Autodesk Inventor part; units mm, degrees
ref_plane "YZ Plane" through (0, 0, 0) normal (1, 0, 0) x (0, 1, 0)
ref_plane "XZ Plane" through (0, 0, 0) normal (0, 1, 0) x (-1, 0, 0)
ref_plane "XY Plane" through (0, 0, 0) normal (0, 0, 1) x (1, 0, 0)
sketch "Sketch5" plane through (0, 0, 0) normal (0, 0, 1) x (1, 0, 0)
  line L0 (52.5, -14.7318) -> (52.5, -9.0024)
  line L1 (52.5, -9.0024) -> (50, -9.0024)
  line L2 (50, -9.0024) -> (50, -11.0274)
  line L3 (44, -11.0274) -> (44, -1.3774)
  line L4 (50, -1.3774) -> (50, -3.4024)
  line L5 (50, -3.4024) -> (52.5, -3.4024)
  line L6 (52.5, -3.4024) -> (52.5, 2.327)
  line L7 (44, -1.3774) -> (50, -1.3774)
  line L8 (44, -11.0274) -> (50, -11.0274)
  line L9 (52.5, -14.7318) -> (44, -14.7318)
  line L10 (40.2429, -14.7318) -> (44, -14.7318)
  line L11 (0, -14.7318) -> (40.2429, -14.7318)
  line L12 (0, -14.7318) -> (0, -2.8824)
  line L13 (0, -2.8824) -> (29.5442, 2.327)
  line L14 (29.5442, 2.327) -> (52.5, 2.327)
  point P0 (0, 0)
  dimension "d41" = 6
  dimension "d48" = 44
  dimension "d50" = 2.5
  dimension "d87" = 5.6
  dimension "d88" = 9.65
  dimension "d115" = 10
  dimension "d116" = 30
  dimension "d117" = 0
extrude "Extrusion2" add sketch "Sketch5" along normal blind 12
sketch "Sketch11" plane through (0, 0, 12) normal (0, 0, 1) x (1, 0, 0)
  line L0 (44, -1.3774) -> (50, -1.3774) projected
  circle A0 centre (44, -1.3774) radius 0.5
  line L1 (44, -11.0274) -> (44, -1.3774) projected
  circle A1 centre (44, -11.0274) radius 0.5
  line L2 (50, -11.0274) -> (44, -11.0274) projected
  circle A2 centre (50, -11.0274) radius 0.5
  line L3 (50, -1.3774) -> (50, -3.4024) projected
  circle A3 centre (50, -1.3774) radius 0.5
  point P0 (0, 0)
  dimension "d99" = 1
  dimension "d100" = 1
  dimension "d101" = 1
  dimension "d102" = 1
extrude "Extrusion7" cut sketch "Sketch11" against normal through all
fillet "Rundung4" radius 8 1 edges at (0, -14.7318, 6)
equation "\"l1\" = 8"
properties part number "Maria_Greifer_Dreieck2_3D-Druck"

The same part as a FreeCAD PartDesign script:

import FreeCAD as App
import Part
import Sketcher
Q = App.Units.Quantity


def edges_at(feature, points):
    """Names of the edges that pass closest to the given points."""
    edges = feature.Shape.Edges
    near = lambda p: min(range(len(edges)), key=lambda i: edges[i].distToShape(Part.Vertex(*p))[0])
    return sorted({f"Edge{near(p) + 1}" for p in points})

doc = App.newDocument("Part")
body = doc.addObject("PartDesign::Body", "Body")

# Sketch on XY plane
sketch1 = doc.addObject("Sketcher::SketchObject", "Sketch")
body.addObject(sketch1)
sketch1.AttachmentSupport = (doc.XY_Plane, [""])
sketch1.MapMode = "FlatFace"
sketch1.addGeometry([
    Part.LineSegment(App.Vector(0, -14.7318, 0), App.Vector(52.5, -14.7318, 0)),  # 0
    Part.LineSegment(App.Vector(52.5, -14.7318, 0), App.Vector(52.5, -9.0024, 0)),  # 1
    Part.LineSegment(App.Vector(52.5, -9.0024, 0), App.Vector(50, -9.0024, 0)),  # 2
    Part.LineSegment(App.Vector(50, -9.0024, 0), App.Vector(50, -11.0274, 0)),  # 3
    Part.LineSegment(App.Vector(50, -11.0274, 0), App.Vector(44, -11.0274, 0)),  # 4
    Part.LineSegment(App.Vector(44, -11.0274, 0), App.Vector(44, -1.3774, 0)),  # 5
    Part.LineSegment(App.Vector(44, -1.3774, 0), App.Vector(50, -1.3774, 0)),  # 6
    Part.LineSegment(App.Vector(50, -1.3774, 0), App.Vector(50, -3.4024, 0)),  # 7
    Part.LineSegment(App.Vector(50, -3.4024, 0), App.Vector(52.5, -3.4024, 0)),  # 8
    Part.LineSegment(App.Vector(52.5, -3.4024, 0), App.Vector(52.5, 2.327, 0)),  # 9
    Part.LineSegment(App.Vector(52.5, 2.327, 0), App.Vector(29.5442, 2.327, 0)),  # 10
    Part.LineSegment(App.Vector(29.5442, 2.327, 0), App.Vector(0, -2.8824, 0)),  # 11
    Part.LineSegment(App.Vector(0, -2.8824, 0), App.Vector(0, -14.7318, 0)),  # 12
], False)
sketch1.addConstraint([
    Sketcher.Constraint("Coincident", 0, 2, 1, 1),
    Sketcher.Constraint("Coincident", 1, 2, 2, 1),
    Sketcher.Constraint("Coincident", 2, 2, 3, 1),
    Sketcher.Constraint("Coincident", 3, 2, 4, 1),
    Sketcher.Constraint("Coincident", 4, 2, 5, 1),
    Sketcher.Constraint("Coincident", 5, 2, 6, 1),
    Sketcher.Constraint("Coincident", 6, 2, 7, 1),
    Sketcher.Constraint("Coincident", 7, 2, 8, 1),
    Sketcher.Constraint("Coincident", 8, 2, 9, 1),
    Sketcher.Constraint("Coincident", 9, 2, 10, 1),
    Sketcher.Constraint("Coincident", 10, 2, 11, 1),
    Sketcher.Constraint("Coincident", 11, 2, 12, 1),
    Sketcher.Constraint("Coincident", 12, 2, 0, 1),
    Sketcher.Constraint("Horizontal", 0),
    Sketcher.Constraint("Vertical", 1),
    Sketcher.Constraint("Horizontal", 2),
    Sketcher.Constraint("Vertical", 3),
    Sketcher.Constraint("Horizontal", 4),
    Sketcher.Constraint("Vertical", 5),
    Sketcher.Constraint("Horizontal", 6),
    Sketcher.Constraint("Vertical", 7),
    Sketcher.Constraint("Horizontal", 8),
    Sketcher.Constraint("Vertical", 9),
    Sketcher.Constraint("Horizontal", 10),
    Sketcher.Constraint("Vertical", 12),
    Sketcher.Constraint("PointOnObject", 11, 2, -2),
    Sketcher.Constraint("Vertical", 3, 2, 6, 2),
    Sketcher.Constraint("Vertical", 1, 2, 8, 2),
    Sketcher.Constraint("Equal", 3, 7),
    Sketcher.Constraint("Equal", 1, 9),
    Sketcher.Constraint("DistanceX", 4, 2, 4, 1, Q("6 mm")),
    Sketcher.Constraint("Distance", 11, Q("30 mm")),
    Sketcher.Constraint("DistanceX", 2, 2, 2, 1, Q("2.5 mm")),
    Sketcher.Constraint("DistanceX", -1, 1, 4, 2, Q("44 mm")),
    Sketcher.Constraint("DistanceY", 5, 1, 5, 2, Q("9.65 mm")),
    Sketcher.Constraint("DistanceY", 2, 2, 7, 2, Q("5.6 mm")),
    Sketcher.Constraint("Angle", 11, Q("-170 deg")),
    Sketcher.Constraint("DistanceY", 7, 2, 11, 2, Q("0.52 mm")),
    Sketcher.Constraint("DistanceY", -1, 1, 9, 2, Q("2.327 mm")),
])
pad1 = doc.addObject("PartDesign::Pad", "Pad")
body.addObject(pad1)
pad1.Profile = sketch1
pad1.Length = 12

# Sketch on XY plane
sketch2 = doc.addObject("Sketcher::SketchObject", "Sketch001")
body.addObject(sketch2)
sketch2.AttachmentSupport = (doc.XY_Plane, [""])
sketch2.MapMode = "FlatFace"
sketch2.AttachmentOffset = App.Placement(App.Vector(0, 0, 12), App.Rotation())
sketch2.addGeometry([
    Part.Circle(App.Vector(44, -1.3774, 0), App.Vector(0, 0, 1), 0.5),
    Part.Circle(App.Vector(50, -1.3774, 0), App.Vector(0, 0, 1), 0.5),
    Part.Circle(App.Vector(50, -11.0274, 0), App.Vector(0, 0, 1), 0.5),
    Part.Circle(App.Vector(44, -11.0274, 0), App.Vector(0, 0, 1), 0.5),
], False)
sketch2.addConstraint([
    Sketcher.Constraint("Equal", 0, 1),
    Sketcher.Constraint("Equal", 1, 2),
    Sketcher.Constraint("Equal", 2, 3),
    Sketcher.Constraint("Horizontal", 0, 3, 1, 3),
    Sketcher.Constraint("Horizontal", 2, 3, 3, 3),
    Sketcher.Constraint("Vertical", 1, 3, 2, 3),
    Sketcher.Constraint("Vertical", 0, 3, 3, 3),
    Sketcher.Constraint("Diameter", 0, Q("1 mm")),
    Sketcher.Constraint("DistanceX", -1, 1, 0, 3, Q("44 mm")),
    Sketcher.Constraint("DistanceX", -1, 1, 1, 3, Q("50 mm")),
    Sketcher.Constraint("DistanceY", 2, 3, 1, 3, Q("9.65 mm")),
    Sketcher.Constraint("DistanceY", 0, 3, -1, 1, Q("1.3774 mm")),
])
pocket1 = doc.addObject("PartDesign::Pocket", "Pocket")
body.addObject(pocket1)
pocket1.Profile = sketch2
pocket1.Type = "ThroughAll"
doc.recompute()

fillet = doc.addObject("PartDesign::Fillet", "Fillet")
body.addObject(fillet)
fillet.Base = (pocket1, edges_at(pocket1, [(0, -14.732, 6)]))
fillet.Radius = 8

doc.recompute()
